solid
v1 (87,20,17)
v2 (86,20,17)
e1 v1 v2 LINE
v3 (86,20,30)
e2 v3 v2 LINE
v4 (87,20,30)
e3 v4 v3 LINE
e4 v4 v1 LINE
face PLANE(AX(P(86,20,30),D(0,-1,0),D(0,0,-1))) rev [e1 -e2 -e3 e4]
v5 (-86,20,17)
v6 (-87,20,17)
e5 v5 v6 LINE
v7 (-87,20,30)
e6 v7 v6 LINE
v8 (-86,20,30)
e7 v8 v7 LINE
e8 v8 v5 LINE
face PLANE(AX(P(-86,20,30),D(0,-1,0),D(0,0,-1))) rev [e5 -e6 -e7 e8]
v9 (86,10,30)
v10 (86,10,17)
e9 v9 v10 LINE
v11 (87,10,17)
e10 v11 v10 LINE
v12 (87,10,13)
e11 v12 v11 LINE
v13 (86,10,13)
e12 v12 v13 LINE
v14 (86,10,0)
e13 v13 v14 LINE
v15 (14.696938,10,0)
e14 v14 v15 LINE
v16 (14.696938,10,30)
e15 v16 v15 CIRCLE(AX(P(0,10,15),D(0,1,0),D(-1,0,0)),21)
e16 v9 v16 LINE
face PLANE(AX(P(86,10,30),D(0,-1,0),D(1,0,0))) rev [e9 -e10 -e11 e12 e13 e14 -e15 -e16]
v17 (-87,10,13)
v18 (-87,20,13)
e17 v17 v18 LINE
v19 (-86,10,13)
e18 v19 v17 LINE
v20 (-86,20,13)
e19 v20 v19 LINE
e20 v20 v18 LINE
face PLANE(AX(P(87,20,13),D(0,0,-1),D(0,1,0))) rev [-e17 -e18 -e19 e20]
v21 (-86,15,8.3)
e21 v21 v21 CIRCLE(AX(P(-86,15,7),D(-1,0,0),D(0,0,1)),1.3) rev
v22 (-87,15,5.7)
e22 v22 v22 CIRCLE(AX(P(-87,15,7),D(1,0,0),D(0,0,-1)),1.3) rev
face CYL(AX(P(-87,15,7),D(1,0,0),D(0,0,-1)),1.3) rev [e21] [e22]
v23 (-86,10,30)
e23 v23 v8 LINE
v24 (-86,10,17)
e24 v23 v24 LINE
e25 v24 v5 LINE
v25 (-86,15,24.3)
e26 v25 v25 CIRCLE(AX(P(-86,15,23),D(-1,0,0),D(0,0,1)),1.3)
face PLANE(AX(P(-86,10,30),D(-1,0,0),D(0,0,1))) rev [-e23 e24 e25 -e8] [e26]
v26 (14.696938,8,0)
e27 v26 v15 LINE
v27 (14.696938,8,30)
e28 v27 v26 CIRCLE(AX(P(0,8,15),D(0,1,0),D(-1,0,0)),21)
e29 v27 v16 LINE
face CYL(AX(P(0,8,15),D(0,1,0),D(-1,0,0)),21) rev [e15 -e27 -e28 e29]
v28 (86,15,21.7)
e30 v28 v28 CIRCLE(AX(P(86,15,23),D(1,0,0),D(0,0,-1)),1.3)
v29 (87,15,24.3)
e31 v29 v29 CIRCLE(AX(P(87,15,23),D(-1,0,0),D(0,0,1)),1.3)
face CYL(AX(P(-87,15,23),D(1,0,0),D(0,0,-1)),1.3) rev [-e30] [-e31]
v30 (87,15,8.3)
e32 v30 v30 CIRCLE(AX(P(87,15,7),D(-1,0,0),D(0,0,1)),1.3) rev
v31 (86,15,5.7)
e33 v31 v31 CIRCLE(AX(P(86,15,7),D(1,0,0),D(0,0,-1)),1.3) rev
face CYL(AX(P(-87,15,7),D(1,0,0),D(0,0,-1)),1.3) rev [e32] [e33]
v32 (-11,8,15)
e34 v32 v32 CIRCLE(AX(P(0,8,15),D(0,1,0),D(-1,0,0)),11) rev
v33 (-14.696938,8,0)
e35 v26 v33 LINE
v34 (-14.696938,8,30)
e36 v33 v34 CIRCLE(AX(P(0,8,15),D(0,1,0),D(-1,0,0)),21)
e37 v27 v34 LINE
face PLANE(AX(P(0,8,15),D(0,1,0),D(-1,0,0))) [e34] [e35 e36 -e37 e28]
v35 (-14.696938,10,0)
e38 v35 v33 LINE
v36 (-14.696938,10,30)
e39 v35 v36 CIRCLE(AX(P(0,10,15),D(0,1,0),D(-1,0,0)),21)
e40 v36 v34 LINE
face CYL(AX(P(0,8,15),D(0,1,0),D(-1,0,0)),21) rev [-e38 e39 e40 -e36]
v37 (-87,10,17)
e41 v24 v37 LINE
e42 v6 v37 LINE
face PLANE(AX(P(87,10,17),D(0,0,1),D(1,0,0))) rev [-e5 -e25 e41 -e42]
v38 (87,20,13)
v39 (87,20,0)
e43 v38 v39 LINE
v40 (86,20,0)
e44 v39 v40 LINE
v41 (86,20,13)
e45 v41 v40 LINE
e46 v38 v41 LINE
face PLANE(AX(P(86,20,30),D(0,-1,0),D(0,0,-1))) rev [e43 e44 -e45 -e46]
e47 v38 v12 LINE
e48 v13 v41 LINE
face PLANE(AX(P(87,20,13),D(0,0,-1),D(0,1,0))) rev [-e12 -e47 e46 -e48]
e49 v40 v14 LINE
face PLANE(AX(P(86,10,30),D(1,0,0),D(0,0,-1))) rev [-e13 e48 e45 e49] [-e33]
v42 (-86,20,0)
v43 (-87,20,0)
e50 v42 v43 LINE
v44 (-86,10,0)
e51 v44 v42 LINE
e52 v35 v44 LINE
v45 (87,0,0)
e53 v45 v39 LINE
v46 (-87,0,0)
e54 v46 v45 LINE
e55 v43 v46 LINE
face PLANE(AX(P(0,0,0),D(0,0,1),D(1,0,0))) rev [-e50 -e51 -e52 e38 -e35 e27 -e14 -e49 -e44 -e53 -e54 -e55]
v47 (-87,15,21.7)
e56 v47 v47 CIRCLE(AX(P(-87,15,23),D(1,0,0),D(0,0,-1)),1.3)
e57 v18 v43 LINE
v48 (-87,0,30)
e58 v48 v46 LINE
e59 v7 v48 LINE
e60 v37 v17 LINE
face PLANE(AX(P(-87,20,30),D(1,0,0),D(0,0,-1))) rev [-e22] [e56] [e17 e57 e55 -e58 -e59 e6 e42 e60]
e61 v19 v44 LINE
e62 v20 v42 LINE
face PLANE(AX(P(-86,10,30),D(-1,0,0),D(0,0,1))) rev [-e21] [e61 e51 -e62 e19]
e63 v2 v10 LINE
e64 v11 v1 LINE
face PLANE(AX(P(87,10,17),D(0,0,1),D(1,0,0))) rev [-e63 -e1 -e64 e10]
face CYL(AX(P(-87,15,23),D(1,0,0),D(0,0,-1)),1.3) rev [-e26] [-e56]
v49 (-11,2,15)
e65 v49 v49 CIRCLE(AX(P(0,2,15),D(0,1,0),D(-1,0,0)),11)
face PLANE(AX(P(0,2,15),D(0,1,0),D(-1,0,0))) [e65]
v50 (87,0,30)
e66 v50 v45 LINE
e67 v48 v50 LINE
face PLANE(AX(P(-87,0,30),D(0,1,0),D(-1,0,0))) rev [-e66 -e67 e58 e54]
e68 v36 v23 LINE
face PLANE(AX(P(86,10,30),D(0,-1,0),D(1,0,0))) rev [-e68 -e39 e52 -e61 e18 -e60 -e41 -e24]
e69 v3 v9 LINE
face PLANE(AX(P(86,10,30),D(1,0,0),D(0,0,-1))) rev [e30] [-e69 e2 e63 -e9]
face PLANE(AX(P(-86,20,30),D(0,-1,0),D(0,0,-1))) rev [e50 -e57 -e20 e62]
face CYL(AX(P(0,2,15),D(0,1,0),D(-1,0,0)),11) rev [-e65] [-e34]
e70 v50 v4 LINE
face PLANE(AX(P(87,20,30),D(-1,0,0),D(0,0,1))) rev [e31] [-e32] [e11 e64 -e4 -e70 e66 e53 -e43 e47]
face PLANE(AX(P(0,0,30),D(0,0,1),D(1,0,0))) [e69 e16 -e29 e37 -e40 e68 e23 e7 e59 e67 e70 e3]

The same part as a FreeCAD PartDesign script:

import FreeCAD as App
import Part
import Sketcher

V = App.Vector


def add_polygon(sketch, points):
    """Adds a closed chain of lines whose ends are joined by coincident constraints."""
    first, n = sketch.GeometryCount, len(points)
    for a, b in zip(points, points[1:] + points[:1]):
        sketch.addGeometry(Part.LineSegment(App.Vector(*a, 0), App.Vector(*b, 0)), False)
    for i in range(n):
        sketch.addConstraint(Sketcher.Constraint("Coincident", first + i, 2, first + (i + 1) % n, 1))

doc = App.newDocument("Part")
body = doc.addObject("PartDesign::Body", "Body")

sketch1 = body.newObject("Sketcher::SketchObject", "Sketch")
sketch1.AttachmentSupport = (doc.getObject("XY_Plane"), [""])
sketch1.MapMode = "FlatFace"
add_polygon(sketch1, [(-87, 20), (-87, 0), (87, 0), (87, 20), (86, 20), (86, 10), (-86, 10), (-86, 20)])
sketch1.addConstraint(Sketcher.Constraint("Vertical", 0))
sketch1.addConstraint(Sketcher.Constraint("Horizontal", 1))
sketch1.addConstraint(Sketcher.Constraint("Vertical", 2))
sketch1.addConstraint(Sketcher.Constraint("Horizontal", 3))
sketch1.addConstraint(Sketcher.Constraint("Vertical", 4))
sketch1.addConstraint(Sketcher.Constraint("Horizontal", 5))
sketch1.addConstraint(Sketcher.Constraint("Vertical", 6))
sketch1.addConstraint(Sketcher.Constraint("Horizontal", 7))
sketch1.addConstraint(Sketcher.Constraint("Symmetric", 0, 2, 1, 2, -1, 1))
sketch1.addConstraint(Sketcher.Constraint("Symmetric", 3, 2, 6, 2, -2))
sketch1.addConstraint(Sketcher.Constraint("DistanceX", 1, 1, 1, 2, 174.0))
sketch1.addConstraint(Sketcher.Constraint("DistanceX", 3, 2, 3, 1, 1.0))
sketch1.addConstraint(Sketcher.Constraint("DistanceY", 0, 2, 0, 1, 20.0))
sketch1.addConstraint(Sketcher.Constraint("DistanceY", 4, 2, 4, 1, 10.0))
pad1 = body.newObject("PartDesign::Pad", "Pad")
pad1.Profile = sketch1
pad1.Length = 30

sketch2 = body.newObject("Sketcher::SketchObject", "Sketch001")
sketch2.AttachmentSupport = (doc.getObject("XZ_Plane"), [""])
sketch2.MapMode = "FlatFace"
sketch2.AttachmentOffset = App.Placement(V(0, 0, -10), App.Rotation())
sketch2.addGeometry(Part.Circle(V(0, 15, 0), V(0, 0, 1), 11), False)
sketch2.addConstraint(Sketcher.Constraint("PointOnObject", 0, 3, -2))
sketch2.addConstraint(Sketcher.Constraint("Diameter", 0, 22.0))
sketch2.addConstraint(Sketcher.Constraint("DistanceY", -1, 1, 0, 3, 15.0))
pocket1 = body.newObject("PartDesign::Pocket", "Pocket")
pocket1.Profile = sketch2
pocket1.Length = 8
pocket1.Reversed = True

sketch3 = body.newObject("Sketcher::SketchObject", "Sketch002")
sketch3.AttachmentSupport = (doc.getObject("YZ_Plane"), [""])
sketch3.MapMode = "FlatFace"
sketch3.AttachmentOffset = App.Placement(V(0, 0, 87), App.Rotation())
sketch3.addGeometry(Part.Circle(V(15, 23, 0), V(0, 0, 1), 1.3), False)
sketch3.addGeometry(Part.Circle(V(15, 7, 0), V(0, 0, 1), 1.3), False)
sketch3.addConstraint(Sketcher.Constraint("Equal", 0, 1))
sketch3.addConstraint(Sketcher.Constraint("Vertical", 0, 3, 1, 3))
sketch3.addConstraint(Sketcher.Constraint("Diameter", 0, 2.6))
sketch3.addConstraint(Sketcher.Constraint("DistanceX", -1, 1, 0, 3, 15.0))
sketch3.addConstraint(Sketcher.Constraint("DistanceY", -1, 1, 0, 3, 23.0))
sketch3.addConstraint(Sketcher.Constraint("DistanceY", -1, 1, 1, 3, 7.0))
pocket2 = body.newObject("PartDesign::Pocket", "Pocket001")
pocket2.Profile = sketch3
pocket2.Type = "ThroughAll"
pocket2.Midplane = True

sketch4 = body.newObject("Sketcher::SketchObject", "Sketch003")
sketch4.AttachmentSupport = (doc.getObject("YZ_Plane"), [""])
sketch4.MapMode = "FlatFace"
sketch4.AttachmentOffset = App.Placement(V(0, 0, -87), App.Rotation())
add_polygon(sketch4, [(20, 13), (10, 13), (10, 17), (20, 17)])
sketch4.addConstraint(Sketcher.Constraint("Horizontal", 0))
sketch4.addConstraint(Sketcher.Constraint("Vertical", 1))
sketch4.addConstraint(Sketcher.Constraint("Horizontal", 2))
sketch4.addConstraint(Sketcher.Constraint("Vertical", 3))
sketch4.addConstraint(Sketcher.Constraint("DistanceX", 0, 2, 0, 1, 10.0))
sketch4.addConstraint(Sketcher.Constraint("DistanceY", 1, 1, 1, 2, 4.0))
sketch4.addConstraint(Sketcher.Constraint("DistanceX", -1, 1, 0, 2, 10.0))
sketch4.addConstraint(Sketcher.Constraint("DistanceY", -1, 1, 0, 2, 13.0))
pocket3 = body.newObject("PartDesign::Pocket", "Pocket002")
pocket3.Profile = sketch4
pocket3.Type = "ThroughAll"
pocket3.Midplane = True

sketch5 = body.newObject("Sketcher::SketchObject", "Sketch004")
sketch5.AttachmentSupport = (doc.getObject("XZ_Plane"), [""])
sketch5.MapMode = "FlatFace"
sketch5.AttachmentOffset = App.Placement(V(0, 0, -10), App.Rotation())
sketch5.addGeometry(Part.Circle(V(0, 15, 0), V(0, 0, 1), 21), False)
sketch5.addConstraint(Sketcher.Constraint("PointOnObject", 0, 3, -2))
sketch5.addConstraint(Sketcher.Constraint("Diameter", 0, 42.0))
sketch5.addConstraint(Sketcher.Constraint("DistanceY", -1, 1, 0, 3, 15.0))
pocket4 = body.newObject("PartDesign::Pocket", "Pocket003")
pocket4.Profile = sketch5
pocket4.Length = 2
pocket4.Reversed = True

doc.recompute()
